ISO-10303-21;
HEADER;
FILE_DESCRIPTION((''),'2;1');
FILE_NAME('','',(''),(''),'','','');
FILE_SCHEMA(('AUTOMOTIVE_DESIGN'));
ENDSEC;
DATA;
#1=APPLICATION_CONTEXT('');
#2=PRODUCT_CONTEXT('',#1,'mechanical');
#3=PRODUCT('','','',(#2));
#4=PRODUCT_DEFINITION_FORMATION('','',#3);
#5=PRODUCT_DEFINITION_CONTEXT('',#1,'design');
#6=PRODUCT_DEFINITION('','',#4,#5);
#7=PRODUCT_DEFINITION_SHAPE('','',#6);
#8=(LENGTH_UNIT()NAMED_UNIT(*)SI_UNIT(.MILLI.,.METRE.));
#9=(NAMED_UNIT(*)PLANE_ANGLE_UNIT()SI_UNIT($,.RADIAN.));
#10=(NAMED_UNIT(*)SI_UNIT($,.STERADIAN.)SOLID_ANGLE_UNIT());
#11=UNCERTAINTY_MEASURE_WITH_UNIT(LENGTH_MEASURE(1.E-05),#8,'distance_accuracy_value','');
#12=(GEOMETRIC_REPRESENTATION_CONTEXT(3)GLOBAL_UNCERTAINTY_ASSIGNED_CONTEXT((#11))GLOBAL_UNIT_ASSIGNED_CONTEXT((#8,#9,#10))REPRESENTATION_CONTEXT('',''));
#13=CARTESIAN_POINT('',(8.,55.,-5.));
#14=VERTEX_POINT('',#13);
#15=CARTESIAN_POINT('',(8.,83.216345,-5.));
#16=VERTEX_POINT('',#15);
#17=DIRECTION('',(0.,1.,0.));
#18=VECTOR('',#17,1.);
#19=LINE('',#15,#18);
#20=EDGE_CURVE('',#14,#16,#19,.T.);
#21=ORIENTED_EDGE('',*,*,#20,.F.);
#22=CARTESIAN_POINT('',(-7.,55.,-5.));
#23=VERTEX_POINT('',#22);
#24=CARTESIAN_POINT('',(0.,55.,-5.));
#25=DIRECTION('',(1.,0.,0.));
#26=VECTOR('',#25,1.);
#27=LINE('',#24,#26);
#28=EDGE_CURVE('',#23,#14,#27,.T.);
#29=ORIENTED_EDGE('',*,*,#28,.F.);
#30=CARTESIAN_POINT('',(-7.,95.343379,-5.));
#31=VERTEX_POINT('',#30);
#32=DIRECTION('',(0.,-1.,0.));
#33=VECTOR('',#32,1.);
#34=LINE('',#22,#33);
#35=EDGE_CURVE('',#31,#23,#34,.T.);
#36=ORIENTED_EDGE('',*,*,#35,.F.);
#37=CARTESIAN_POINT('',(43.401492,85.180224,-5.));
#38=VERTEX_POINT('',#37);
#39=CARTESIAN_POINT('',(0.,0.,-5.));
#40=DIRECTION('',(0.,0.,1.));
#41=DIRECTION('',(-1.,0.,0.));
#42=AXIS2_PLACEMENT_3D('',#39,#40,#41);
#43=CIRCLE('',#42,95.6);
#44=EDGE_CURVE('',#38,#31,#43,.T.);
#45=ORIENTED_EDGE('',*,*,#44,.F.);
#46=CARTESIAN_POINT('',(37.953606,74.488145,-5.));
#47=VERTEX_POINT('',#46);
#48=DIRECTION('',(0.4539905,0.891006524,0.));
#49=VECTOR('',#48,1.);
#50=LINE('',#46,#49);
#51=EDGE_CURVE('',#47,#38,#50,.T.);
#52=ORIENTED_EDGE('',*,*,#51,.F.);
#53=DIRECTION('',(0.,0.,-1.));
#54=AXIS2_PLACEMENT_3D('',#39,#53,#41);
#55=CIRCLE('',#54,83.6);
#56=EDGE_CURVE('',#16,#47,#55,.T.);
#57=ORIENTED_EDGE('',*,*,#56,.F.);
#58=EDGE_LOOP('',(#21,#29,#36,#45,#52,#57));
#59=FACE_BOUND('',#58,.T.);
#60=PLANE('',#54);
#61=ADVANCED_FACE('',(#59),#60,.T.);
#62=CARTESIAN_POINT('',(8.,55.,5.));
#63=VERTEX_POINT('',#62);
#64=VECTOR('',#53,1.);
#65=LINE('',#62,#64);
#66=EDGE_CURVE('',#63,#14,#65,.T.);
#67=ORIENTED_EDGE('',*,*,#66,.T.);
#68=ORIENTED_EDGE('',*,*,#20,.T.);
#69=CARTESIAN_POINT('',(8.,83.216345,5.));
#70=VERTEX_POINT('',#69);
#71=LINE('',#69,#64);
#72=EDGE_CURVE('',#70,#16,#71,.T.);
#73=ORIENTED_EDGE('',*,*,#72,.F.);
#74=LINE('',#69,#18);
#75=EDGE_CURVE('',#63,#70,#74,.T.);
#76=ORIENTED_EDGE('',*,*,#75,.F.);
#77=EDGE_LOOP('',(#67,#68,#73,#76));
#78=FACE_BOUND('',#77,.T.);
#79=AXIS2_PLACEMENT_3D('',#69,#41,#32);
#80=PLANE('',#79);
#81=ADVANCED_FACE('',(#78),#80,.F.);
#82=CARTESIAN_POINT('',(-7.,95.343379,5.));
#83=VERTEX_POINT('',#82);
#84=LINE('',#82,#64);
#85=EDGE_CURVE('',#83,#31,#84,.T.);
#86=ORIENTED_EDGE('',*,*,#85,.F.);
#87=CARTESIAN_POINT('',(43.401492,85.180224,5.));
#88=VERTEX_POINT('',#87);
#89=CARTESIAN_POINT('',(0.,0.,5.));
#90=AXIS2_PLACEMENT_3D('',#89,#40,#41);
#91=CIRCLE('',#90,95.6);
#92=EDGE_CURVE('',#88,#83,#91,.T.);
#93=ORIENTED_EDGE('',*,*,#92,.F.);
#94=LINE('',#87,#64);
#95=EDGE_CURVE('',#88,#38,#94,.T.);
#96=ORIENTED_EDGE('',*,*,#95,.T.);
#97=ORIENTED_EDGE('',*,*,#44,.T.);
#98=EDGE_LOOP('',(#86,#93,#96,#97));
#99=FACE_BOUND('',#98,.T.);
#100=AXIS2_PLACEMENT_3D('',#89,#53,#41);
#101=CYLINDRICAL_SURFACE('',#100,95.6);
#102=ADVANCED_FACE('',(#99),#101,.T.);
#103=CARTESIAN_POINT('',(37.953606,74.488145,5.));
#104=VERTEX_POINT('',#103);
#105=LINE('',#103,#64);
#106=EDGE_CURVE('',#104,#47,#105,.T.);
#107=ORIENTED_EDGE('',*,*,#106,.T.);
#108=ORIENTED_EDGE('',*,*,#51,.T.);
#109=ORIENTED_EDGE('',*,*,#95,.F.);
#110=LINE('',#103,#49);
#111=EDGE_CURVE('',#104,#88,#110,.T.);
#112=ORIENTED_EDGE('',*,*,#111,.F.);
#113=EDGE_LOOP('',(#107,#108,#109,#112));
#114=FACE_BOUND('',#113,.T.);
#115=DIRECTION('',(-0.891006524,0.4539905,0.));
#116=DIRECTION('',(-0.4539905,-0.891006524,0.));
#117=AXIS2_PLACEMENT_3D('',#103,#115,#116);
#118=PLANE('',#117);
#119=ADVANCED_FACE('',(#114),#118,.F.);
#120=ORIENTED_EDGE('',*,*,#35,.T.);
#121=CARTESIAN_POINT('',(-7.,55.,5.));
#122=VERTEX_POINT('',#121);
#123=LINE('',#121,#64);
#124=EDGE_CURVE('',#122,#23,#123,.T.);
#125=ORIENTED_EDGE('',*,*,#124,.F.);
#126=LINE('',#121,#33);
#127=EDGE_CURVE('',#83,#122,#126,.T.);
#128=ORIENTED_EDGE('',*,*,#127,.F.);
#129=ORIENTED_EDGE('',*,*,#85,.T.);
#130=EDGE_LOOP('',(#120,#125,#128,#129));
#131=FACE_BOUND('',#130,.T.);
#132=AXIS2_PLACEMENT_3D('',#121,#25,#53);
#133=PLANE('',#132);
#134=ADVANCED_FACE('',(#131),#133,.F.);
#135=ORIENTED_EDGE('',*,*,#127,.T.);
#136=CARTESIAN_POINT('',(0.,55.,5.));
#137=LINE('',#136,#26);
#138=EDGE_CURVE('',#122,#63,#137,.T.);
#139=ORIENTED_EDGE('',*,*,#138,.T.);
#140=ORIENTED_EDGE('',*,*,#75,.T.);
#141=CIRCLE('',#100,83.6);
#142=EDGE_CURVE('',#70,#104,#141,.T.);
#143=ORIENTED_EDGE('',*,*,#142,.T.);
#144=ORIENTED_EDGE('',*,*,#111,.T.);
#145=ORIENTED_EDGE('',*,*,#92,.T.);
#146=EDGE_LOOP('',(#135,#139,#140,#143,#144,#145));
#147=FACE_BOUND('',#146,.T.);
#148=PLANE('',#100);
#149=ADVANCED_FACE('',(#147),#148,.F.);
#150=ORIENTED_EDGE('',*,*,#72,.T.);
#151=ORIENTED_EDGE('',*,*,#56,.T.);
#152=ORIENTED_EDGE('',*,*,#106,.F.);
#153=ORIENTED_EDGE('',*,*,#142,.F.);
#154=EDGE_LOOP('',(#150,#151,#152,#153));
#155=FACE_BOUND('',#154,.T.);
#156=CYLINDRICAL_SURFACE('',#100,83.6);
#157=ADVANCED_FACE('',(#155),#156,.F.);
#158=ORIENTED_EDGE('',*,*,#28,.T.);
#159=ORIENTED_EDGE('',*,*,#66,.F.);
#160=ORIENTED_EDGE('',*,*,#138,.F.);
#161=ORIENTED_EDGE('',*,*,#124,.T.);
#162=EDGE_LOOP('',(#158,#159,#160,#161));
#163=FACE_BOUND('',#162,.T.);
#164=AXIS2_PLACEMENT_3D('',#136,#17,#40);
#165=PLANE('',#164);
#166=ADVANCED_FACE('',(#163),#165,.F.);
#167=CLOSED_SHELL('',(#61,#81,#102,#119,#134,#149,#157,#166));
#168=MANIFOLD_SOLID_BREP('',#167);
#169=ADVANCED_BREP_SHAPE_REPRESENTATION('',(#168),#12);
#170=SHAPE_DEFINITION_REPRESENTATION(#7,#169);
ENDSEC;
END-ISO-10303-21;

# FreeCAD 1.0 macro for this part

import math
import FreeCAD as App
import Part
import Sketcher
Q = App.Units.Quantity

doc = App.newDocument("Part")
params = doc.addObject("Spreadsheet::Sheet", "Params")
for row, (alias, value) in enumerate([
    ("sketch1_radius", "95.6 mm"),
    ("sketch1_radius2", "83.6 mm"),
    ("sketch1_width", "15 mm"),
    ("pad1_length", "10 mm"),
], start=1):
    params.set(f"A{row}", alias)
    params.set(f"B{row}", "=" + value)
    params.setAlias(f"B{row}", alias)

body = doc.addObject("PartDesign::Body", "Body")

# Sketch on XY plane
sketch1 = body.newObject("Sketcher::SketchObject", "Sketch")
sketch1.AttachmentSupport = (doc.getObject("XY_Plane"), [""])
sketch1.MapMode = "FlatFace"
sketch1.addGeometry([
    Part.LineSegment(App.Vector(38, 74, 0), App.Vector(43, 85, 0)),  # 0
    Part.ArcOfCircle(Part.Circle(App.Vector(0, 0, 0), App.Vector(0, 0, 1), 96), math.radians(63), math.radians(94)),  # 1
    Part.LineSegment(App.Vector(-7, 95, 0), App.Vector(-7, 55, 0)),  # 2
    Part.LineSegment(App.Vector(-7, 55, 0), App.Vector(8, 55, 0)),  # 3
    Part.LineSegment(App.Vector(8, 55, 0), App.Vector(8, 83, 0)),  # 4
    Part.ArcOfCircle(Part.Circle(App.Vector(0, 0, 0), App.Vector(0, 0, 1), 84), math.radians(63), math.radians(85)),  # 5
], False)
sketch1.addConstraint([
    Sketcher.Constraint("Coincident", 0, 2, 1, 1),
    Sketcher.Constraint("Coincident", 1, 2, 2, 1),
    Sketcher.Constraint("Coincident", 2, 2, 3, 1),
    Sketcher.Constraint("Coincident", 3, 2, 4, 1),
    Sketcher.Constraint("Coincident", 4, 2, 5, 2),
    Sketcher.Constraint("Coincident", 5, 1, 0, 1),
    Sketcher.Constraint("Vertical", 2),
    Sketcher.Constraint("Horizontal", 3),
    Sketcher.Constraint("Vertical", 4),
    Sketcher.Constraint("Coincident", 1, 3, -1, 1),
    Sketcher.Constraint("Coincident", 5, 3, -1, 1),
    Sketcher.Constraint("Radius", 1, 95.6),
    Sketcher.Constraint("Radius", 5, 83.6),
    Sketcher.Constraint("DistanceX", 3, 1, 3, 2, 15.0),
    Sketcher.Constraint("Angle", 0, Q("63 deg")),
    Sketcher.Constraint("DistanceX", 1, 2, -1, 1, 7.0),
    Sketcher.Constraint("DistanceY", -1, 1, 2, 2, 55.0),
    Sketcher.Constraint("DistanceY", 5, 1, 4, 2, 8.728199),
])
sketch1.setExpression("Constraints[11]", "Params.sketch1_radius")
sketch1.setExpression("Constraints[12]", "Params.sketch1_radius2")
sketch1.setExpression("Constraints[13]", "Params.sketch1_width")
pad1 = body.newObject("PartDesign::Pad", "Pad")
pad1.Profile = sketch1
pad1.setExpression("Length", "Params.pad1_length")
pad1.Midplane = True

doc.recompute()
